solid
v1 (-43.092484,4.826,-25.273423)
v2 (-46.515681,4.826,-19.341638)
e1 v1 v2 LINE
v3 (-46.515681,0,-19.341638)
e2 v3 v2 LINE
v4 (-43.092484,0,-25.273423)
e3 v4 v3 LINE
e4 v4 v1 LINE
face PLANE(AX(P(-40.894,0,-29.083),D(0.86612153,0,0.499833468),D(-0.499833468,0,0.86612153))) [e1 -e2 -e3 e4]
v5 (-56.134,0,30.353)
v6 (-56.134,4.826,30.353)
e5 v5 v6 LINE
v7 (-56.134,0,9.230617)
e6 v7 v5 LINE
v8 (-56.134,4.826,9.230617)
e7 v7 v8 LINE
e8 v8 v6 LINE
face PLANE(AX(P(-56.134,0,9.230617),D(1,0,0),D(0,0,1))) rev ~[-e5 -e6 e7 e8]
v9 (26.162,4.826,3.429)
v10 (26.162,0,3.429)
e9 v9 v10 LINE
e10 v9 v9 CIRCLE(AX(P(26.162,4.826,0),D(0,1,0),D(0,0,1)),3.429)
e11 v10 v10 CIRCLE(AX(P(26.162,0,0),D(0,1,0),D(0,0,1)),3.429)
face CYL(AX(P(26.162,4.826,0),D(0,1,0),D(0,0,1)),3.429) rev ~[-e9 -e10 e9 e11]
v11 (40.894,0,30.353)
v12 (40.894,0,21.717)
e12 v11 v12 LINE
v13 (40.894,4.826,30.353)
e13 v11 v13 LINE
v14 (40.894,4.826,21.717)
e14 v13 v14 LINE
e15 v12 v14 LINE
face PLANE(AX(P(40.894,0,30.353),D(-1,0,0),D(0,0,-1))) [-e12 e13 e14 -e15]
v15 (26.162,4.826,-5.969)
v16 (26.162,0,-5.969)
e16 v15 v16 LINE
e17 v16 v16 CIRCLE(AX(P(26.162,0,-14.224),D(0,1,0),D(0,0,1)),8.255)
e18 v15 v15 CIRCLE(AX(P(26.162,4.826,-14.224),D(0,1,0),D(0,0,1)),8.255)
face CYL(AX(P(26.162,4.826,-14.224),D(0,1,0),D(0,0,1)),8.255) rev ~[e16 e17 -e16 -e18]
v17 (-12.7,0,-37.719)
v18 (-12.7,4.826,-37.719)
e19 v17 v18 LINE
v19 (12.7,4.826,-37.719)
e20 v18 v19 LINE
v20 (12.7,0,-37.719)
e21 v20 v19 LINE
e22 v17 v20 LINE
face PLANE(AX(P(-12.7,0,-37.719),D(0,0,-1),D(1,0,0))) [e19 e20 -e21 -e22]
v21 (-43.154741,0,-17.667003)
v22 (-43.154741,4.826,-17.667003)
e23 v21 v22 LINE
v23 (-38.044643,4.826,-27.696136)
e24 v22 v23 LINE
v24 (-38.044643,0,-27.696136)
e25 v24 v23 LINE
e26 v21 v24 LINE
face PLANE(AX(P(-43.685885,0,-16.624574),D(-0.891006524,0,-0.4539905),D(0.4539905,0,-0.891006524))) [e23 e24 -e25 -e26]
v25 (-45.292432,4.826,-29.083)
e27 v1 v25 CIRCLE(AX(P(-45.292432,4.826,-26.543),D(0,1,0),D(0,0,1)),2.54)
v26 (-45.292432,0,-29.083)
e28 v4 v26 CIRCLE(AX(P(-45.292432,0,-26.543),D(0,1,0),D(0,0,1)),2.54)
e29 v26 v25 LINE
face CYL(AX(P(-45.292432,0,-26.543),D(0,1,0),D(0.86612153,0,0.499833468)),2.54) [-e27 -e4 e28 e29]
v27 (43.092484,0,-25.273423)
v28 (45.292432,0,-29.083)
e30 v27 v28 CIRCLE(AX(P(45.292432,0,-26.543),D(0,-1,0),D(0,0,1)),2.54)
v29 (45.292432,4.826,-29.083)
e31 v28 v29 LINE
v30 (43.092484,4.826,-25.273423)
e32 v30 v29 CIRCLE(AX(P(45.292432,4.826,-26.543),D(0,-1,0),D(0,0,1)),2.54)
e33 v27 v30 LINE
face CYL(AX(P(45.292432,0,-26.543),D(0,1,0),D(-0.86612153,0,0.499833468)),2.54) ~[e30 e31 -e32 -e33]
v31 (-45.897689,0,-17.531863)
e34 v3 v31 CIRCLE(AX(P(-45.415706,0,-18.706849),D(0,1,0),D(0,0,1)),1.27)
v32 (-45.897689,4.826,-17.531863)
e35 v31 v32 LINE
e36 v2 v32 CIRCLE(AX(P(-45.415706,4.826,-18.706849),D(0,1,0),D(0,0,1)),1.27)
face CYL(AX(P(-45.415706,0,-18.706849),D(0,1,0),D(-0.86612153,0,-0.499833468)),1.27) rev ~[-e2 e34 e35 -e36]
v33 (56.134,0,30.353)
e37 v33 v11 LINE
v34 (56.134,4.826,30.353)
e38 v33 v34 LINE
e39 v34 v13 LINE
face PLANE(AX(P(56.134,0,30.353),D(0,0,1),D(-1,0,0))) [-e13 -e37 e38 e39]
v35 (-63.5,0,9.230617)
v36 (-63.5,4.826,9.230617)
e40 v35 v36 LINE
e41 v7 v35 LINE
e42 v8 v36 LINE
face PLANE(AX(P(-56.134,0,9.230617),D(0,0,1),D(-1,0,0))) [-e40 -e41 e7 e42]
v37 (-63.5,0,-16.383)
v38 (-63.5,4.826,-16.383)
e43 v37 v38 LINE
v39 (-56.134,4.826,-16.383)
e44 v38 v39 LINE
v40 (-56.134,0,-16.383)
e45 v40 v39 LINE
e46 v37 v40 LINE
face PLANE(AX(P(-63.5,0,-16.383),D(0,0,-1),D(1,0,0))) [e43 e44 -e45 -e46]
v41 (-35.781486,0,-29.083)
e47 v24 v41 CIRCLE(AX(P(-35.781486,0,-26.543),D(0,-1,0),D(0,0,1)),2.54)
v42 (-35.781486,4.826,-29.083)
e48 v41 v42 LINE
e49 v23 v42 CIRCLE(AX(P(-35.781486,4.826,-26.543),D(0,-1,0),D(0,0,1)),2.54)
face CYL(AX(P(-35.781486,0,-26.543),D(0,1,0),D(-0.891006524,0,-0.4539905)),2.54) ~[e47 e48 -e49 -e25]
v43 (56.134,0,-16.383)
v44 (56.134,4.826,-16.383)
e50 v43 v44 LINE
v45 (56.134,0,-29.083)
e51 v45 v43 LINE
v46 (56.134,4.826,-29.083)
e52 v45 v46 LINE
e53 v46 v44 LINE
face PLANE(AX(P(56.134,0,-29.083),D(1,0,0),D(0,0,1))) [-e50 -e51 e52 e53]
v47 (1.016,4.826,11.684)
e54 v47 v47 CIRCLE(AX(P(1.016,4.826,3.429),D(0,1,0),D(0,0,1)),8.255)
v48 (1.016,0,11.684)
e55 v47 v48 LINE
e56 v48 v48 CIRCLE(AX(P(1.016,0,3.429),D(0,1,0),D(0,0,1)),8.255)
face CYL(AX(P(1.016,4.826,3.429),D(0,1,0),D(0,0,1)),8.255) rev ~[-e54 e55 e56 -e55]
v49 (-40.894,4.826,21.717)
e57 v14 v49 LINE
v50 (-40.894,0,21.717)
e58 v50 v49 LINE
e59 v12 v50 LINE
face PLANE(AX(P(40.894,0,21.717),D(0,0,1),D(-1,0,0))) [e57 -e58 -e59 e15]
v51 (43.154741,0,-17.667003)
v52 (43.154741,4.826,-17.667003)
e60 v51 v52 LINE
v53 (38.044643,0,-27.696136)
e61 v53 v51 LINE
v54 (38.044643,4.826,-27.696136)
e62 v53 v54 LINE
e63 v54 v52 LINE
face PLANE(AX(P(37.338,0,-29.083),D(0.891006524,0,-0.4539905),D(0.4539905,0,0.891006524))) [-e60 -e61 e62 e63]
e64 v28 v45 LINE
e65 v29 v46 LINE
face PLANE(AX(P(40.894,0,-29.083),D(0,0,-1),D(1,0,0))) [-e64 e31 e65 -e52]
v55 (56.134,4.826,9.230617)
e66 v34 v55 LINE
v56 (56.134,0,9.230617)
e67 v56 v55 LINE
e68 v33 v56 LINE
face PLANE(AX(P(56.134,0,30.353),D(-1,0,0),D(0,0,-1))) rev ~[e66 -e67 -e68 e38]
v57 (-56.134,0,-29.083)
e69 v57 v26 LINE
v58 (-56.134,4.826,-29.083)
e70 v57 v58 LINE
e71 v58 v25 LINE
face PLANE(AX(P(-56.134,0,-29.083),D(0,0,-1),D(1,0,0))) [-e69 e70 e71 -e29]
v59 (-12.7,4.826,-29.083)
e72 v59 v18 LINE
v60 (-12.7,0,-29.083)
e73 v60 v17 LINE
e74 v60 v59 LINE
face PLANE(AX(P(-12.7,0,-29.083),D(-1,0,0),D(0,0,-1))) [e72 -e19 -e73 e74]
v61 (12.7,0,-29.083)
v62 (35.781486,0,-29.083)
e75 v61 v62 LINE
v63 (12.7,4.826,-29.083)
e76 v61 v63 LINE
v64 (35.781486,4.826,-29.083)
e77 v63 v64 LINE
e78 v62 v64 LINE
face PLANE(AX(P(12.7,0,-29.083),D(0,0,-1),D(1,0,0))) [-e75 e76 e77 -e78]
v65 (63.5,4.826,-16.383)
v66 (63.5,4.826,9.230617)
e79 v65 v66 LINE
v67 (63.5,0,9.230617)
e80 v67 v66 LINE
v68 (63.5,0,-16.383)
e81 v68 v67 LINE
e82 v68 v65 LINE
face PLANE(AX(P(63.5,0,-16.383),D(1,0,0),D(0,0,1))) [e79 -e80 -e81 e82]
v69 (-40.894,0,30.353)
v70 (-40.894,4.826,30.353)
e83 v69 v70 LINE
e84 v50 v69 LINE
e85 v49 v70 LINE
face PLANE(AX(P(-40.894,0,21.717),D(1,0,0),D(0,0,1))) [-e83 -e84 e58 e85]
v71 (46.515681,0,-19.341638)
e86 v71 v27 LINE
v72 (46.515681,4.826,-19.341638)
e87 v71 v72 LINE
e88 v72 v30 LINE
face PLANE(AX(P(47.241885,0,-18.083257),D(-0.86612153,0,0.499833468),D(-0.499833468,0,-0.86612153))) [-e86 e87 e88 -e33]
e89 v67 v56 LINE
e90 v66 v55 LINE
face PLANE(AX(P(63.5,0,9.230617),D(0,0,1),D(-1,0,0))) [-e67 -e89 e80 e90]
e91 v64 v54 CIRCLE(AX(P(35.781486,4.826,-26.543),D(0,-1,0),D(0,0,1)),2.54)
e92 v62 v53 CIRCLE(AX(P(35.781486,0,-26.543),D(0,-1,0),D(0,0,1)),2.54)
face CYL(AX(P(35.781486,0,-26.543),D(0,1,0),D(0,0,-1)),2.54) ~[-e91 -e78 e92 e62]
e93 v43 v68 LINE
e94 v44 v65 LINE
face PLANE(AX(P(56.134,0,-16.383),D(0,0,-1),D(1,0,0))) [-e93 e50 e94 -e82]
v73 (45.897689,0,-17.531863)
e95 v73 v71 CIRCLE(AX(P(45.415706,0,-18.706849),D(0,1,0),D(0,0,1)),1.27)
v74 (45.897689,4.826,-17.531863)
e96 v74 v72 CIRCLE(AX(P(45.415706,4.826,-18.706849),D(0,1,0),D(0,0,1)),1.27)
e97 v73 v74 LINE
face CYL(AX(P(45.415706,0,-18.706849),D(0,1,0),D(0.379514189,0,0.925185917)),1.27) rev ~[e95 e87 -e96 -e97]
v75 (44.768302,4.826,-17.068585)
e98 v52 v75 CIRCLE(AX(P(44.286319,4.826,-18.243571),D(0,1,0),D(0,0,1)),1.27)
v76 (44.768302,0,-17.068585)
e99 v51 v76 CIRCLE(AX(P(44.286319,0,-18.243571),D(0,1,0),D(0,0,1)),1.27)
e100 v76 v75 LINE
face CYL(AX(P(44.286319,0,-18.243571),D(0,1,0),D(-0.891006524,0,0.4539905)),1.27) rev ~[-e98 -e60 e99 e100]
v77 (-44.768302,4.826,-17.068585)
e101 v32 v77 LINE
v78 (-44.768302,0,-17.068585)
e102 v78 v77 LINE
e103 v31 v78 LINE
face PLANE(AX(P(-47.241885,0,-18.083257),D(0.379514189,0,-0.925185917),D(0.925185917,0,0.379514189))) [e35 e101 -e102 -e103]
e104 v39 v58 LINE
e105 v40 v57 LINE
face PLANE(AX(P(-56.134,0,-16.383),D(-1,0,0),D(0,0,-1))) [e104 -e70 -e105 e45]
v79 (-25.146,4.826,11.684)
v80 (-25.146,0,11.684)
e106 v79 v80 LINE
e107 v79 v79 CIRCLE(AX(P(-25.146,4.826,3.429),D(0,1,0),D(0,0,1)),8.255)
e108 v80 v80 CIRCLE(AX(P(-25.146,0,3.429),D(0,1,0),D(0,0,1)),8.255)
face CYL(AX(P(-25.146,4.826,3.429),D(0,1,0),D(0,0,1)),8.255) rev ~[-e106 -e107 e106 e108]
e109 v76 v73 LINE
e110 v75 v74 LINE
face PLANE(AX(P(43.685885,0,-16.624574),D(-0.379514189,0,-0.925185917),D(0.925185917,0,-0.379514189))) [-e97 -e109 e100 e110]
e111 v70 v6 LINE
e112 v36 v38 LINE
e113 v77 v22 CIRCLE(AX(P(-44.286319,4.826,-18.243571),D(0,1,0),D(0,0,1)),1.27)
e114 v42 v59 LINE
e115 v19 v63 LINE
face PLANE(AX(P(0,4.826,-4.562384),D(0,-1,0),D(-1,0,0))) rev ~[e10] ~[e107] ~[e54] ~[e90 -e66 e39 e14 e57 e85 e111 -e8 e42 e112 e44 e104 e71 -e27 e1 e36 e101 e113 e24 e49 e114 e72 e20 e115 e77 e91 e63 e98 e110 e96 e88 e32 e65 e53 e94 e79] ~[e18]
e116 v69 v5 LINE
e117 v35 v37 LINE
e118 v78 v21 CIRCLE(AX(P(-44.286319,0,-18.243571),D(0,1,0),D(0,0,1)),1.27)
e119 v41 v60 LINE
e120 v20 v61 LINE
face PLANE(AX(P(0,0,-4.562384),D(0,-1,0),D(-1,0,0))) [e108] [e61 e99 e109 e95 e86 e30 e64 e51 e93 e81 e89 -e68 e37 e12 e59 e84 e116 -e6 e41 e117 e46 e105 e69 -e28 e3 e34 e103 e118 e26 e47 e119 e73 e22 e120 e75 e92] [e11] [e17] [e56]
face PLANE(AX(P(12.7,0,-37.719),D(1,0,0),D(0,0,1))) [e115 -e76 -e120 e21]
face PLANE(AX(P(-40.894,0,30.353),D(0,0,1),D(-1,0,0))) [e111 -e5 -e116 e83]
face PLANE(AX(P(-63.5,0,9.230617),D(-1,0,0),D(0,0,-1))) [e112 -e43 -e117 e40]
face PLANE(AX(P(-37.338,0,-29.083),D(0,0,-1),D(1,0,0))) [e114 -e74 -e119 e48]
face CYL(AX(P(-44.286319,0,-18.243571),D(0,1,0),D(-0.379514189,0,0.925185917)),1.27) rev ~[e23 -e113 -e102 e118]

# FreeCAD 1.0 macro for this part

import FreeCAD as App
import Part
import Sketcher
Q = App.Units.Quantity


def edges_at(feature, points):
    """Names of the edges that pass closest to the given points."""
    edges = feature.Shape.Edges
    near = lambda p: min(range(len(edges)), key=lambda i: edges[i].distToShape(Part.Vertex(*p))[0])
    return sorted({f"Edge{near(p) + 1}" for p in points})


def add_polygon(sketch, points):
    """Adds a closed chain of lines whose ends are joined by coincident constraints."""
    first, n = sketch.GeometryCount, len(points)
    for a, b in zip(points, points[1:] + points[:1]):
        sketch.addGeometry(Part.LineSegment(App.Vector(*a, 0), App.Vector(*b, 0)), False)
    for i in range(n):
        sketch.addConstraint(Sketcher.Constraint("Coincident", first + i, 2, first + (i + 1) % n, 1))

doc = App.newDocument("Part")
body = doc.addObject("PartDesign::Body", "Body")

# Sketch on XZ plane
sketch1 = body.newObject("Sketcher::SketchObject", "Sketch")
sketch1.AttachmentSupport = (doc.getObject("XZ_Plane"), [""])
sketch1.MapMode = "FlatFace"
add_polygon(sketch1, [(-40.9, -29.1), (-56.1, -29.1), (-56.1, -16.4), (-63.5, -16.4), (-63.5, 9.2), (-56.1, 9.2), (-56.1, 30.4), (-40.9, 30.4), (-40.9, 21.7), (40.9, 21.7), (40.9, 30.4), (56.1, 30.4), (56.1, 9.2), (63.5, 9.2), (63.5, -16.4), (56.1, -16.4), (56.1, -29.1), (40.9, -29.1), (47.2, -18.1), (43.7, -16.6), (37.3, -29.1), (12.7, -29.1), (12.7, -37.7), (-12.7, -37.7), (-12.7, -29.1), (-37.3, -29.1), (-43.7, -16.6), (-47.2, -18.1)])  # lines 0-27
sketch1.addConstraint([
    Sketcher.Constraint("Horizontal", 0),
    Sketcher.Constraint("Vertical", 1),
    Sketcher.Constraint("Horizontal", 2),
    Sketcher.Constraint("Vertical", 3),
    Sketcher.Constraint("Horizontal", 4),
    Sketcher.Constraint("Vertical", 5),
    Sketcher.Constraint("Horizontal", 6),
    Sketcher.Constraint("Vertical", 7),
    Sketcher.Constraint("Horizontal", 8),
    Sketcher.Constraint("Vertical", 9),
    Sketcher.Constraint("Horizontal", 10),
    Sketcher.Constraint("Vertical", 11),
    Sketcher.Constraint("Horizontal", 12),
    Sketcher.Constraint("Vertical", 13),
    Sketcher.Constraint("Horizontal", 14),
    Sketcher.Constraint("Vertical", 15),
    Sketcher.Constraint("Horizontal", 16),
    Sketcher.Constraint("Horizontal", 20),
    Sketcher.Constraint("Vertical", 21),
    Sketcher.Constraint("Horizontal", 22),
    Sketcher.Constraint("Vertical", 23),
    Sketcher.Constraint("Horizontal", 24),
    Sketcher.Constraint("Symmetric", 6, 2, 9, 2, -2),
    Sketcher.Constraint("Symmetric", 4, 2, 11, 2, -2),
    Sketcher.Constraint("Symmetric", 2, 2, 13, 2, -2),
    Sketcher.Constraint("Symmetric", 0, 2, 15, 2, -2),
    Sketcher.Constraint("Symmetric", 20, 2, 23, 2, -2),
    Sketcher.Constraint("Symmetric", 18, 2, 25, 2, -2),
    Sketcher.Constraint("Symmetric", 17, 2, 26, 2, -2),
    Sketcher.Constraint("Horizontal", 16, 2, 19, 2),
    Sketcher.Constraint("Vertical", 1, 2, 4, 2),
    Sketcher.Constraint("Vertical", 9, 2, 16, 2),
    Sketcher.Constraint("Vertical", 7, 2, 27, 2),
    Sketcher.Constraint("Equal", 20, 24),
    Sketcher.Constraint("Equal", 9, 21),
    Sketcher.Constraint("DistanceX", 22, 2, 22, 1, Q("1 in")),
    Sketcher.Constraint("DistanceX", 0, 2, 0, 1, Q("0.6 in")),
    Sketcher.Constraint("DistanceY", 1, 1, 1, 2, Q("0.5 in")),
    Sketcher.Constraint("Angle", 19, Q("-117 deg")),
    Sketcher.Constraint("DistanceY", 15, 2, 8, 2, Q("2 in")),
    Sketcher.Constraint("Distance", 17, Q("0.5 in")),
    Sketcher.Constraint("DistanceX", 2, 2, 2, 1, Q("0.29 in")),
    Sketcher.Constraint("DistanceX", 8, 1, 8, 2, Q("3.22 in")),
    Sketcher.Constraint("DistanceX", 20, 2, 20, 1, Q("0.97 in")),
    Sketcher.Constraint("DistanceY", 7, 2, 7, 1, Q("0.34 in")),
    Sketcher.Constraint("DistanceX", 18, 2, 17, 2, Q("0.14 in")),
    Sketcher.Constraint("DistanceY", 0, 2, -1, 1, Q("1.145 in")),
    Sketcher.Constraint("Distance", 18, Q("3.843552 mm")),
    Sketcher.Constraint("DistanceY", 3, 1, 3, 2, Q("25.613617 mm")),
])
pad1 = body.newObject("PartDesign::Pad", "Pad")
pad1.Profile = sketch1
pad1.Length = Q("0.19 in")
pad1.Reversed = True
doc.recompute()

fillet = body.newObject("PartDesign::Fillet", "Fillet")
fillet.Base = (pad1, edges_at(pad1, [
    (-47.242, 2.413, -18.083),
    (-43.686, 2.413, -16.625),
    (43.686, 2.413, -16.625),
    (47.242, 2.413, -18.083),
]))
fillet.Radius = Q("0.05 in")

# Sketch on XZ plane
sketch2 = body.newObject("Sketcher::SketchObject", "Sketch001")
sketch2.AttachmentSupport = (doc.getObject("XZ_Plane"), [""])
sketch2.MapMode = "FlatFace"
sketch2.AttachmentOffset = App.Placement(App.Vector(0, 0, -0.19 * 25.4), App.Rotation())
sketch2.addGeometry([
    Part.Circle(App.Vector(26.2, -14.2, 0), App.Vector(0, 0, 1), 8.3),
    Part.Circle(App.Vector(26.2, 0, 0), App.Vector(0, 0, 1), 3.4),
    Part.Circle(App.Vector(-25.1, 3.4, 0), App.Vector(0, 0, 1), 8.3),
    Part.Circle(App.Vector(1, 3.4, 0), App.Vector(0, 0, 1), 8.3),
], False)
sketch2.addConstraint([
    Sketcher.Constraint("Equal", 0, 2),
    Sketcher.Constraint("Equal", 2, 3),
    Sketcher.Constraint("PointOnObject", 1, 3, -1),
    Sketcher.Constraint("Horizontal", 2, 3, 3, 3),
    Sketcher.Constraint("Vertical", 0, 3, 1, 3),
    Sketcher.Constraint("Diameter", 0, Q("0.65 in")),
    Sketcher.Constraint("Diameter", 1, Q("0.27 in")),
    Sketcher.Constraint("DistanceX", -1, 1, 0, 3, Q("1.03 in")),
    Sketcher.Constraint("DistanceY", 0, 3, -1, 1, Q("0.56 in")),
    Sketcher.Constraint("DistanceX", 2, 3, -1, 1, Q("0.99 in")),
    Sketcher.Constraint("DistanceX", -1, 1, 3, 3, Q("0.04 in")),
    Sketcher.Constraint("DistanceY", -1, 1, 2, 3, Q("0.135 in")),
])
pocket1 = body.newObject("PartDesign::Pocket", "Pocket")
pocket1.Profile = sketch2
pocket1.Type = "ThroughAll"
pocket1.Reversed = True
doc.recompute()

fillet2 = body.newObject("PartDesign::Fillet", "Fillet001")
fillet2.Base = (pocket1, edges_at(pocket1, [
    (-40.894, 2.413, -29.083),
    (-37.338, 2.413, -29.083),
    (37.338, 2.413, -29.083),
    (40.894, 2.413, -29.083),
]))
fillet2.Radius = Q("0.1 in")

doc.recompute()
